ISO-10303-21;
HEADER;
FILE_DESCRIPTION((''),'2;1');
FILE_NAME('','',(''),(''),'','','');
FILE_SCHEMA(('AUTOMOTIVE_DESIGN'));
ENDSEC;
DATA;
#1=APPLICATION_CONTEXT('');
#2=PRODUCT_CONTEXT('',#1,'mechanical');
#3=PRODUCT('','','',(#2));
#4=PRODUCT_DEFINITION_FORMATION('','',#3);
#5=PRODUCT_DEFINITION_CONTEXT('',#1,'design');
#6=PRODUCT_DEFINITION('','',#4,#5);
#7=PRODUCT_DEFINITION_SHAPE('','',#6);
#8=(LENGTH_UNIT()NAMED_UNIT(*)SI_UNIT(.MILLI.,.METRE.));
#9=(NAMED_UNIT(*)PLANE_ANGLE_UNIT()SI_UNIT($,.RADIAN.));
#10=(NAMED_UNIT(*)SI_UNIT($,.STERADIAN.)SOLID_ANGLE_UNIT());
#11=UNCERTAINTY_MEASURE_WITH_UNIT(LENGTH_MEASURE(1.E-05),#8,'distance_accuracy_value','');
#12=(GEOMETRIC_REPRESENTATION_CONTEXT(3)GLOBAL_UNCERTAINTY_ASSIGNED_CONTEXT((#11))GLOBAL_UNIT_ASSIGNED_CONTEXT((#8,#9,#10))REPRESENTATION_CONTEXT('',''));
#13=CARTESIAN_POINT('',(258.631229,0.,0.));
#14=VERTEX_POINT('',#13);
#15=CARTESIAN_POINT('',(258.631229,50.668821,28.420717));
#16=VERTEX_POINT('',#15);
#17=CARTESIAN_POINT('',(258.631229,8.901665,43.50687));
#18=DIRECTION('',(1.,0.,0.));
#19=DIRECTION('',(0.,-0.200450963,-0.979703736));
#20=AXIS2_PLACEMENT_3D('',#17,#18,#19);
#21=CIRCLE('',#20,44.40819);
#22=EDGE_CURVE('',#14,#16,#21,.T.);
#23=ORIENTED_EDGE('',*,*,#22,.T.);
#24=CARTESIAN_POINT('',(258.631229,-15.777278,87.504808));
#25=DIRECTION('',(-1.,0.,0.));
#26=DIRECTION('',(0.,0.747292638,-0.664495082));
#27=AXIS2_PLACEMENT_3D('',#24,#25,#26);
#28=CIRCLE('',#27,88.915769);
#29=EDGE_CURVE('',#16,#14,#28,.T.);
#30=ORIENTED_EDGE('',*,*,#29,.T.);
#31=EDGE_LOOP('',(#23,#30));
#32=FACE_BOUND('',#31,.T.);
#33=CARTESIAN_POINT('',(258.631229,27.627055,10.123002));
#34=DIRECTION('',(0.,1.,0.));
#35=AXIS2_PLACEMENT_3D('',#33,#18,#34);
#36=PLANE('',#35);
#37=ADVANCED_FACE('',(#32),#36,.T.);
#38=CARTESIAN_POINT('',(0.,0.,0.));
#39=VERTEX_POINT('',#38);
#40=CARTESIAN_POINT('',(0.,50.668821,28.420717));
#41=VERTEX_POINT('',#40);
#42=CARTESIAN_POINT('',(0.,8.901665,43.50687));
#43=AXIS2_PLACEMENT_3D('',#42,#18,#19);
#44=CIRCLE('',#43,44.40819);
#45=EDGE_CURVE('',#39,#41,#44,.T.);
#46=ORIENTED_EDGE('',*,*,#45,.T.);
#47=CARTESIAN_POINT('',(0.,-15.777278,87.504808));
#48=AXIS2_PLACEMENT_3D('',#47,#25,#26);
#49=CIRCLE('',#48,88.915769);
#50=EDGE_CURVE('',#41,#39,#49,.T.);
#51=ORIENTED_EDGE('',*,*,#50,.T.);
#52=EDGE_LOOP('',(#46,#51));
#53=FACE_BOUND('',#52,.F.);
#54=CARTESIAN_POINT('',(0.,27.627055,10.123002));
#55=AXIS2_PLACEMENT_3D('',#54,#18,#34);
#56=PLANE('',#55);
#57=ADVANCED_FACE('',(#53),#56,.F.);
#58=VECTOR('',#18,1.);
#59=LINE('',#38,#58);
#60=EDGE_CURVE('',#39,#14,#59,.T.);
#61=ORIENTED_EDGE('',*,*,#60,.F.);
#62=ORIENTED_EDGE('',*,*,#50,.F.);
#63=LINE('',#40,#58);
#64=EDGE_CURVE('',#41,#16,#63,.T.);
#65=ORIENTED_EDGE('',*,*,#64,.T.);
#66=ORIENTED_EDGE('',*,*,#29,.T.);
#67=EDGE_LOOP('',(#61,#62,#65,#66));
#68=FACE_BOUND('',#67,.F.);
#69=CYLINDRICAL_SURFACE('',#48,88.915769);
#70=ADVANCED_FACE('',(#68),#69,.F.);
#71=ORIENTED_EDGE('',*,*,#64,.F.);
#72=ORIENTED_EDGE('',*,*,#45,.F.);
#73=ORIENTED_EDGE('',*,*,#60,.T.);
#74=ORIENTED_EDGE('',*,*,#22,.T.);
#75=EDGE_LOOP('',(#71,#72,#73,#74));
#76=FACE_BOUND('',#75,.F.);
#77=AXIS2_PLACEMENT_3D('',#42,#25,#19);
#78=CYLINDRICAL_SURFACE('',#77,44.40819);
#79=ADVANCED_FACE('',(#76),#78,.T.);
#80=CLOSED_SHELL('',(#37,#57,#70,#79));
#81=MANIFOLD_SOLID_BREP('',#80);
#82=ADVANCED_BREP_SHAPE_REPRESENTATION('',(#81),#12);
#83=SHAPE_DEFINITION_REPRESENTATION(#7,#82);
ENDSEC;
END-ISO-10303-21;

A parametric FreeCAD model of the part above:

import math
import FreeCAD as App
import Part
import Sketcher

doc = App.newDocument("Part")
params = doc.addObject("Spreadsheet::Sheet", "Params")
for row, (alias, value) in enumerate([
    ("pad1_length", "258.631229 mm"),
], start=1):
    params.set(f"A{row}", alias)
    params.set(f"B{row}", "=" + value)
    params.setAlias(f"B{row}", alias)

body = doc.addObject("PartDesign::Body", "Body")

# Sketch on YZ plane
sketch1 = body.newObject("Sketcher::SketchObject", "Sketch")
sketch1.AttachmentSupport = (doc.getObject("YZ_Plane"), [""])
sketch1.MapMode = "FlatFace"
sketch1.addGeometry(Part.ArcOfCircle(Part.Circle(App.Vector(-16, 88, 0), App.Vector(0, 0, 1), 89), math.radians(-80), math.radians(-42)), False)
sketch1.addGeometry(Part.ArcOfCircle(Part.Circle(App.Vector(9, 44, 0), App.Vector(0, 0, 1), 44), math.radians(-102), math.radians(-20)), False)
sketch1.addConstraint(Sketcher.Constraint("Coincident", 0, 1, 1, 1))
sketch1.addConstraint(Sketcher.Constraint("Coincident", 1, 2, 0, 2))
sketch1.addConstraint(Sketcher.Constraint("Coincident", 0, 1, -1, 1))
sketch1.addConstraint(Sketcher.Constraint("Radius", 0, 88.915769))
sketch1.addConstraint(Sketcher.Constraint("Radius", 1, 44.40819))
sketch1.addConstraint(Sketcher.Constraint("DistanceX", 0, 3, 1, 2, 66.446099))
sketch1.addConstraint(Sketcher.Constraint("DistanceX", 0, 3, -1, 1, 15.777278))
pad1 = body.newObject("PartDesign::Pad", "Pad")
pad1.Profile = sketch1
pad1.setExpression("Length", "Params.pad1_length")

doc.recompute()
